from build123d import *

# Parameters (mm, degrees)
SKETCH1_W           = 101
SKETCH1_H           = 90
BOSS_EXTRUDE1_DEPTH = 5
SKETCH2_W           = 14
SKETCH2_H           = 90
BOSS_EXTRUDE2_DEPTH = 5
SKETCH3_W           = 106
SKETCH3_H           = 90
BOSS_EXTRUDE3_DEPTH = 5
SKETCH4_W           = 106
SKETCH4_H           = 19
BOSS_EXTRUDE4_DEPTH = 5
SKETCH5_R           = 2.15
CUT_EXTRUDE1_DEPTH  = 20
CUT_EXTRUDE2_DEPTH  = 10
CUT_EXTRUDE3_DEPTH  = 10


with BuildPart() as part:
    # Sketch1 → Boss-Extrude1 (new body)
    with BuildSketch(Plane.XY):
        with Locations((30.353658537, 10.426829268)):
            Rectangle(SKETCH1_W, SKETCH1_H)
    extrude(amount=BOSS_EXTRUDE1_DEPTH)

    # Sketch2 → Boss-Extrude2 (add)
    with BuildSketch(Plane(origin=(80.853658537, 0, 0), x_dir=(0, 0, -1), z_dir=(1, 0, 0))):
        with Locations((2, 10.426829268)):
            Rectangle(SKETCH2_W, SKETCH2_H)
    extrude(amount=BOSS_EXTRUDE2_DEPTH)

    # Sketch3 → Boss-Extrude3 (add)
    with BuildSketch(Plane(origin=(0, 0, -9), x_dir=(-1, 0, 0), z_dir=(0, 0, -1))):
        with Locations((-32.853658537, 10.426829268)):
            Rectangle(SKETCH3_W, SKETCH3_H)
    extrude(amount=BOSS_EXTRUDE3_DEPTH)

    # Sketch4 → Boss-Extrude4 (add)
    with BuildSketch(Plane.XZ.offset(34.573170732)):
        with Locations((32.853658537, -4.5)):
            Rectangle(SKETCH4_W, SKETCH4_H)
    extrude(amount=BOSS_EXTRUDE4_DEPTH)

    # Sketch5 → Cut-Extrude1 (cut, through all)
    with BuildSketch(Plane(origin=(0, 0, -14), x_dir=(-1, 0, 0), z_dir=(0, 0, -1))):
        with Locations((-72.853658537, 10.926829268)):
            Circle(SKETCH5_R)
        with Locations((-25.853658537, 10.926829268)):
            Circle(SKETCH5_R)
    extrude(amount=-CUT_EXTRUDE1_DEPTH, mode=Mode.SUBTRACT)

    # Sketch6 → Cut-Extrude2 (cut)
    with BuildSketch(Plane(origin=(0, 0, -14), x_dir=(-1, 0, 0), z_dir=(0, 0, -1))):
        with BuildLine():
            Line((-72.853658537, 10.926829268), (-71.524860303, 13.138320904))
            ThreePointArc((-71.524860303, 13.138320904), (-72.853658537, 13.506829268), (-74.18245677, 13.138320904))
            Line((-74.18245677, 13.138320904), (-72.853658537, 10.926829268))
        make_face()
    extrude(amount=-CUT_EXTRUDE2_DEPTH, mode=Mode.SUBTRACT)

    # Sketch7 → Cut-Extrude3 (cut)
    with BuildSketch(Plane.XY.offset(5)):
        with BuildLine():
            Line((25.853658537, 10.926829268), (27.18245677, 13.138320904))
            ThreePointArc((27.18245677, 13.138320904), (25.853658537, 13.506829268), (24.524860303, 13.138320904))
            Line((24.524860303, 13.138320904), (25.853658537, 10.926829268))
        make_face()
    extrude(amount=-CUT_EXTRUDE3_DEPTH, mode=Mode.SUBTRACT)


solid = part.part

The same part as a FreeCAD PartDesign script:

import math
import FreeCAD as App
import Part
import Sketcher

V = App.Vector
Q = App.Units.Quantity

doc = App.newDocument("Part")
body = doc.addObject("PartDesign::Body", "Body")

# Sketch on XY plane
sketch1 = body.newObject("Sketcher::SketchObject", "Sketch")
sketch1.AttachmentSupport = (doc.getObject("XY_Plane"), [""])
sketch1.MapMode = "FlatFace"
sketch1.addGeometry([
    Part.LineSegment(V(-20.146341, 55.426829, 0), V(-20.146341, -34.573171, 0)),
    Part.LineSegment(V(-20.146341, -34.573171, 0), V(80.853659, -34.573171, 0)),
    Part.LineSegment(V(80.853659, -34.573171, 0), V(80.853659, 55.426829, 0)),
    Part.LineSegment(V(80.853659, 55.426829, 0), V(-20.146341, 55.426829, 0)),
], False)
sketch1.addConstraint([
    Sketcher.Constraint("Coincident", 0, 2, 1, 1),
    Sketcher.Constraint("Coincident", 1, 2, 2, 1),
    Sketcher.Constraint("Coincident", 2, 2, 3, 1),
    Sketcher.Constraint("Coincident", 3, 2, 0, 1),
    Sketcher.Constraint("Vertical", 0),
    Sketcher.Constraint("Horizontal", 1),
    Sketcher.Constraint("Vertical", 2),
    Sketcher.Constraint("Horizontal", 3),
    Sketcher.Constraint("DistanceX", 1, 1, 1, 2, Q("101 mm")),
    Sketcher.Constraint("DistanceY", 0, 2, 0, 1, Q("90 mm")),
    Sketcher.Constraint("DistanceX", 0, 2, -1, 1, Q("20.146341 mm")),
    Sketcher.Constraint("DistanceY", 0, 2, -1, 1, Q("34.573171 mm")),
])
pad1 = body.newObject("PartDesign::Pad", "Pad")
pad1.Profile = sketch1
pad1.Length = 5

# Sketch on YZ plane
sketch2 = body.newObject("Sketcher::SketchObject", "Sketch001")
sketch2.AttachmentSupport = (doc.getObject("YZ_Plane"), [""])
sketch2.MapMode = "FlatFace"
sketch2.AttachmentOffset = App.Placement(V(0, 0, 80.853659), App.Rotation())
sketch2.addGeometry([
    Part.LineSegment(V(55.426829, 5, 0), V(-34.573171, 5, 0)),
    Part.LineSegment(V(-34.573171, 5, 0), V(-34.573171, -9, 0)),
    Part.LineSegment(V(-34.573171, -9, 0), V(55.426829, -9, 0)),
    Part.LineSegment(V(55.426829, -9, 0), V(55.426829, 5, 0)),
], False)
sketch2.addConstraint([
    Sketcher.Constraint("Coincident", 0, 2, 1, 1),
    Sketcher.Constraint("Coincident", 1, 2, 2, 1),
    Sketcher.Constraint("Coincident", 2, 2, 3, 1),
    Sketcher.Constraint("Coincident", 3, 2, 0, 1),
    Sketcher.Constraint("Horizontal", 0),
    Sketcher.Constraint("Vertical", 1),
    Sketcher.Constraint("Horizontal", 2),
    Sketcher.Constraint("Vertical", 3),
    Sketcher.Constraint("DistanceX", 0, 2, 0, 1, Q("90 mm")),
    Sketcher.Constraint("DistanceY", 1, 2, 1, 1, Q("14 mm")),
    Sketcher.Constraint("DistanceY", -1, 1, 0, 2, Q("5 mm")),
    Sketcher.Constraint("DistanceX", 0, 2, -1, 1, Q("34.573171 mm")),
])
pad2 = body.newObject("PartDesign::Pad", "Pad001")
pad2.Profile = sketch2
pad2.Length = 5

# Sketch on XY plane
sketch3 = body.newObject("Sketcher::SketchObject", "Sketch002")
sketch3.AttachmentSupport = (doc.getObject("XY_Plane"), [""])
sketch3.MapMode = "FlatFace"
sketch3.AttachmentOffset = App.Placement(V(0, 0, -9), App.Rotation())
sketch3.addGeometry([
    Part.LineSegment(V(85.853659, 55.426829, 0), V(85.853659, -34.573171, 0)),
    Part.LineSegment(V(85.853659, -34.573171, 0), V(-20.146341, -34.573171, 0)),
    Part.LineSegment(V(-20.146341, -34.573171, 0), V(-20.146341, 55.426829, 0)),
    Part.LineSegment(V(-20.146341, 55.426829, 0), V(85.853659, 55.426829, 0)),
], False)
sketch3.addConstraint([
    Sketcher.Constraint("Coincident", 0, 2, 1, 1),
    Sketcher.Constraint("Coincident", 1, 2, 2, 1),
    Sketcher.Constraint("Coincident", 2, 2, 3, 1),
    Sketcher.Constraint("Coincident", 3, 2, 0, 1),
    Sketcher.Constraint("Vertical", 0),
    Sketcher.Constraint("Horizontal", 1),
    Sketcher.Constraint("Vertical", 2),
    Sketcher.Constraint("Horizontal", 3),
    Sketcher.Constraint("DistanceX", 1, 2, 1, 1, Q("106 mm")),
    Sketcher.Constraint("DistanceY", 0, 2, 0, 1, Q("90 mm")),
    Sketcher.Constraint("DistanceX", -1, 1, 0, 2, Q("85.853659 mm")),
    Sketcher.Constraint("DistanceY", 0, 2, -1, 1, Q("34.573171 mm")),
])
pad3 = body.newObject("PartDesign::Pad", "Pad002")
pad3.Profile = sketch3
pad3.Length = 5
pad3.Reversed = True

# Sketch on XZ plane
sketch4 = body.newObject("Sketcher::SketchObject", "Sketch003")
sketch4.AttachmentSupport = (doc.getObject("XZ_Plane"), [""])
sketch4.MapMode = "FlatFace"
sketch4.AttachmentOffset = App.Placement(V(0, 0, 34.573171), App.Rotation())
sketch4.addGeometry([
    Part.LineSegment(V(-20.146341, 5, 0), V(-20.146341, -14, 0)),
    Part.LineSegment(V(-20.146341, -14, 0), V(85.853659, -14, 0)),
    Part.LineSegment(V(85.853659, -14, 0), V(85.853659, 5, 0)),
    Part.LineSegment(V(85.853659, 5, 0), V(-20.146341, 5, 0)),
], False)
sketch4.addConstraint([
    Sketcher.Constraint("Coincident", 0, 2, 1, 1),
    Sketcher.Constraint("Coincident", 1, 2, 2, 1),
    Sketcher.Constraint("Coincident", 2, 2, 3, 1),
    Sketcher.Constraint("Coincident", 3, 2, 0, 1),
    Sketcher.Constraint("Vertical", 0),
    Sketcher.Constraint("Horizontal", 1),
    Sketcher.Constraint("Vertical", 2),
    Sketcher.Constraint("Horizontal", 3),
    Sketcher.Constraint("DistanceX", 1, 1, 1, 2, Q("106 mm")),
    Sketcher.Constraint("DistanceY", 0, 2, 0, 1, Q("19 mm")),
    Sketcher.Constraint("DistanceY", 0, 2, -1, 1, Q("14 mm")),
    Sketcher.Constraint("DistanceX", 0, 2, -1, 1, Q("20.146341 mm")),
])
pad4 = body.newObject("PartDesign::Pad", "Pad003")
pad4.Profile = sketch4
pad4.Length = 5

# Sketch on XY plane
sketch5 = body.newObject("Sketcher::SketchObject", "Sketch004")
sketch5.AttachmentSupport = (doc.getObject("XY_Plane"), [""])
sketch5.MapMode = "FlatFace"
sketch5.AttachmentOffset = App.Placement(V(0, 0, -14), App.Rotation())
sketch5.addGeometry([
    Part.Circle(V(72.853659, 10.926829, 0), V(0, 0, 1), 2.15),
    Part.Circle(V(25.853659, 10.926829, 0), V(0, 0, 1), 2.15),
], False)
sketch5.addConstraint([
    Sketcher.Constraint("Equal", 0, 1),
    Sketcher.Constraint("Horizontal", 0, 3, 1, 3),
    Sketcher.Constraint("Diameter", 0, Q("4.3 mm")),
    Sketcher.Constraint("DistanceX", 1, 3, 0, 3, Q("47 mm")),
    Sketcher.Constraint("DistanceX", -1, 1, 0, 3, Q("72.853659 mm")),
    Sketcher.Constraint("DistanceY", -1, 1, 0, 3, Q("10.926829 mm")),
])
pocket1 = body.newObject("PartDesign::Pocket", "Pocket")
pocket1.Profile = sketch5
pocket1.Type = "ThroughAll"
pocket1.Reversed = True

# Sketch on XY plane
sketch6 = body.newObject("Sketcher::SketchObject", "Sketch005")
sketch6.AttachmentSupport = (doc.getObject("XY_Plane"), [""])
sketch6.MapMode = "FlatFace"
sketch6.AttachmentOffset = App.Placement(V(0, 0, -14), App.Rotation())
sketch6.addGeometry([
    Part.LineSegment(V(72.853659, 10.926829, 0), V(71.52486, 13.138321, 0)),
    Part.ArcOfCircle(Part.Circle(V(72.853659, 10.926829, 0), V(0, 0, 1), 2.58), math.radians(59), math.radians(121)),
    Part.LineSegment(V(74.182457, 13.138321, 0), V(72.853659, 10.926829, 0)),
], False)
sketch6.addConstraint([
    Sketcher.Constraint("Coincident", 0, 2, 1, 2),
    Sketcher.Constraint("Coincident", 1, 1, 2, 1),
    Sketcher.Constraint("Coincident", 2, 2, 0, 1),
    Sketcher.Constraint("Coincident", 2, 2, 1, 3),
    Sketcher.Constraint("Horizontal", 0, 2, 1, 1),
    Sketcher.Constraint("Angle", 0, Q("121 deg")),
    Sketcher.Constraint("Radius", 1, Q("2.58 mm")),
    Sketcher.Constraint("DistanceX", -1, 1, 1, 3, Q("72.853659 mm")),
    Sketcher.Constraint("DistanceY", -1, 1, 1, 3, Q("10.926829 mm")),
])
pocket2 = body.newObject("PartDesign::Pocket", "Pocket001")
pocket2.Profile = sketch6
pocket2.Length = 10
pocket2.Reversed = True

# Sketch on XY plane
sketch7 = body.newObject("Sketcher::SketchObject", "Sketch006")
sketch7.AttachmentSupport = (doc.getObject("XY_Plane"), [""])
sketch7.MapMode = "FlatFace"
sketch7.AttachmentOffset = App.Placement(V(0, 0, 5), App.Rotation())
sketch7.addGeometry([
    Part.LineSegment(V(25.853659, 10.926829, 0), V(27.182457, 13.138321, 0)),
    Part.ArcOfCircle(Part.Circle(V(25.853659, 10.926829, 0), V(0, 0, 1), 2.58), math.radians(59), math.radians(121)),
    Part.LineSegment(V(24.52486, 13.138321, 0), V(25.853659, 10.926829, 0)),
], False)
sketch7.addConstraint([
    Sketcher.Constraint("Coincident", 0, 2, 1, 1),
    Sketcher.Constraint("Coincident", 1, 2, 2, 1),
    Sketcher.Constraint("Coincident", 2, 2, 0, 1),
    Sketcher.Constraint("Coincident", 2, 2, 1, 3),
    Sketcher.Constraint("Horizontal", 0, 2, 1, 2),
    Sketcher.Constraint("Angle", 0, Q("59 deg")),
    Sketcher.Constraint("Radius", 1, Q("2.58 mm")),
    Sketcher.Constraint("DistanceX", -1, 1, 1, 3, Q("25.853659 mm")),
    Sketcher.Constraint("DistanceY", -1, 1, 1, 3, Q("10.926829 mm")),
])
pocket3 = body.newObject("PartDesign::Pocket", "Pocket002")
pocket3.Profile = sketch7
pocket3.Length = 10

doc.recompute()
